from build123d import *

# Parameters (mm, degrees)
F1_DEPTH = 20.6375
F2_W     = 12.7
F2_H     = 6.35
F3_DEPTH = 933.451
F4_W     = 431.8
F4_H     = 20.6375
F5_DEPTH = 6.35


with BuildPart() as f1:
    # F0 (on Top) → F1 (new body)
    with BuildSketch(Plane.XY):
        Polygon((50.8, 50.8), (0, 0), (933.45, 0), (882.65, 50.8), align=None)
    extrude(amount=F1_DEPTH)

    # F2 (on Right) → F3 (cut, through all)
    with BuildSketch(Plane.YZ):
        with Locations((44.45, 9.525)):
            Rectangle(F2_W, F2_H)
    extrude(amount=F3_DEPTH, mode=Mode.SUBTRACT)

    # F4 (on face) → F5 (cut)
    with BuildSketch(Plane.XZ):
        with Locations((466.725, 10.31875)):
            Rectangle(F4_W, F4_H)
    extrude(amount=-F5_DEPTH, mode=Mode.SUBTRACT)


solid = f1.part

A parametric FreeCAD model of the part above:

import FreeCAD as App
import Part
import Sketcher
from FreeCAD import Vector
Q = App.Units.Quantity

doc = App.newDocument("Part")
body = doc.addObject("PartDesign::Body", "Body")

# Sketch on XY plane
sketch1 = body.newObject("Sketcher::SketchObject", "Sketch")
sketch1.AttachmentSupport = (doc.getObject("XY_Plane"), [""])
sketch1.MapMode = "FlatFace"
sketch1.addGeometry(Part.LineSegment(Vector(51, 51, 0), Vector(0, 0, 0)), False)
sketch1.addGeometry(Part.LineSegment(Vector(0, 0, 0), Vector(933, 0, 0)), False)
sketch1.addGeometry(Part.LineSegment(Vector(933, 0, 0), Vector(883, 51, 0)), False)
sketch1.addGeometry(Part.LineSegment(Vector(883, 51, 0), Vector(51, 51, 0)), False)
sketch1.addConstraint(Sketcher.Constraint("Coincident", 0, 2, 1, 1))
sketch1.addConstraint(Sketcher.Constraint("Coincident", 1, 2, 2, 1))
sketch1.addConstraint(Sketcher.Constraint("Coincident", 2, 2, 3, 1))
sketch1.addConstraint(Sketcher.Constraint("Coincident", 3, 2, 0, 1))
sketch1.addConstraint(Sketcher.Constraint("Horizontal", 1))
sketch1.addConstraint(Sketcher.Constraint("Horizontal", 3))
sketch1.addConstraint(Sketcher.Constraint("Coincident", 0, 2, -1, 1))
sketch1.addConstraint(Sketcher.Constraint("Perpendicular", 0, 2))
sketch1.addConstraint(Sketcher.Constraint("Equal", 0, 2))
sketch1.addConstraint(Sketcher.Constraint("DistanceY", -1, 1, 2, 2, Q("2 in")))
sketch1.addConstraint(Sketcher.Constraint("DistanceX", 1, 1, 1, 2, Q("36.75 in")))
pad1 = body.newObject("PartDesign::Pad", "Pad")
pad1.Profile = sketch1
pad1.Length = Q("0.8125 in")

# Sketch on YZ plane
sketch2 = body.newObject("Sketcher::SketchObject", "Sketch001")
sketch2.AttachmentSupport = (doc.getObject("YZ_Plane"), [""])
sketch2.MapMode = "FlatFace"
sketch2.addGeometry(Part.LineSegment(Vector(38, 13, 0), Vector(38, 6, 0)), False)
sketch2.addGeometry(Part.LineSegment(Vector(38, 6, 0), Vector(51, 6, 0)), False)
sketch2.addGeometry(Part.LineSegment(Vector(51, 6, 0), Vector(51, 13, 0)), False)
sketch2.addGeometry(Part.LineSegment(Vector(51, 13, 0), Vector(38, 13, 0)), False)
sketch2.addConstraint(Sketcher.Constraint("Coincident", 0, 2, 1, 1))
sketch2.addConstraint(Sketcher.Constraint("Coincident", 1, 2, 2, 1))
sketch2.addConstraint(Sketcher.Constraint("Coincident", 2, 2, 3, 1))
sketch2.addConstraint(Sketcher.Constraint("Coincident", 3, 2, 0, 1))
sketch2.addConstraint(Sketcher.Constraint("Vertical", 0))
sketch2.addConstraint(Sketcher.Constraint("Horizontal", 1))
sketch2.addConstraint(Sketcher.Constraint("Vertical", 2))
sketch2.addConstraint(Sketcher.Constraint("Horizontal", 3))
sketch2.addConstraint(Sketcher.Constraint("DistanceX", 1, 1, 1, 2, Q("0.5 in")))
sketch2.addConstraint(Sketcher.Constraint("DistanceX", -1, 1, 1, 2, Q("2 in")))
sketch2.addConstraint(Sketcher.Constraint("DistanceY", 0, 2, 0, 1, Q("0.25 in")))
sketch2.addConstraint(Sketcher.Constraint("DistanceY", -1, 1, 2, 2, Q("0.5 in")))
pocket1 = body.newObject("PartDesign::Pocket", "Pocket")
pocket1.Profile = sketch2
pocket1.Type = "ThroughAll"
pocket1.Reversed = True

# Sketch on XZ plane
sketch3 = body.newObject("Sketcher::SketchObject", "Sketch002")
sketch3.AttachmentSupport = (doc.getObject("XZ_Plane"), [""])
sketch3.MapMode = "FlatFace"
sketch3.addGeometry(Part.LineSegment(Vector(251, 21, 0), Vector(251, 0, 0)), False)
sketch3.addGeometry(Part.LineSegment(Vector(251, 0, 0), Vector(683, 0, 0)), False)
sketch3.addGeometry(Part.LineSegment(Vector(683, 0, 0), Vector(683, 21, 0)), False)
sketch3.addGeometry(Part.LineSegment(Vector(683, 21, 0), Vector(251, 21, 0)), False)
sketch3.addConstraint(Sketcher.Constraint("Coincident", 0, 2, 1, 1))
sketch3.addConstraint(Sketcher.Constraint("Coincident", 1, 2, 2, 1))
sketch3.addConstraint(Sketcher.Constraint("Coincident", 2, 2, 3, 1))
sketch3.addConstraint(Sketcher.Constraint("Coincident", 3, 2, 0, 1))
sketch3.addConstraint(Sketcher.Constraint("Vertical", 0))
sketch3.addConstraint(Sketcher.Constraint("Horizontal", 1))
sketch3.addConstraint(Sketcher.Constraint("Vertical", 2))
sketch3.addConstraint(Sketcher.Constraint("Horizontal", 3))
sketch3.addConstraint(Sketcher.Constraint("PointOnObject", 0, 2, -1))
sketch3.addConstraint(Sketcher.Constraint("DistanceX", 1, 1, 1, 2, Q("17 in")))
sketch3.addConstraint(Sketcher.Constraint("DistanceY", 0, 2, 0, 1, Q("0.8125 in")))
sketch3.addConstraint(Sketcher.Constraint("DistanceX", -1, 1, 0, 2, Q("9.875 in")))
pocket2 = body.newObject("PartDesign::Pocket", "Pocket001")
pocket2.Profile = sketch3
pocket2.Length = Q("0.25 in")

doc.recompute()
